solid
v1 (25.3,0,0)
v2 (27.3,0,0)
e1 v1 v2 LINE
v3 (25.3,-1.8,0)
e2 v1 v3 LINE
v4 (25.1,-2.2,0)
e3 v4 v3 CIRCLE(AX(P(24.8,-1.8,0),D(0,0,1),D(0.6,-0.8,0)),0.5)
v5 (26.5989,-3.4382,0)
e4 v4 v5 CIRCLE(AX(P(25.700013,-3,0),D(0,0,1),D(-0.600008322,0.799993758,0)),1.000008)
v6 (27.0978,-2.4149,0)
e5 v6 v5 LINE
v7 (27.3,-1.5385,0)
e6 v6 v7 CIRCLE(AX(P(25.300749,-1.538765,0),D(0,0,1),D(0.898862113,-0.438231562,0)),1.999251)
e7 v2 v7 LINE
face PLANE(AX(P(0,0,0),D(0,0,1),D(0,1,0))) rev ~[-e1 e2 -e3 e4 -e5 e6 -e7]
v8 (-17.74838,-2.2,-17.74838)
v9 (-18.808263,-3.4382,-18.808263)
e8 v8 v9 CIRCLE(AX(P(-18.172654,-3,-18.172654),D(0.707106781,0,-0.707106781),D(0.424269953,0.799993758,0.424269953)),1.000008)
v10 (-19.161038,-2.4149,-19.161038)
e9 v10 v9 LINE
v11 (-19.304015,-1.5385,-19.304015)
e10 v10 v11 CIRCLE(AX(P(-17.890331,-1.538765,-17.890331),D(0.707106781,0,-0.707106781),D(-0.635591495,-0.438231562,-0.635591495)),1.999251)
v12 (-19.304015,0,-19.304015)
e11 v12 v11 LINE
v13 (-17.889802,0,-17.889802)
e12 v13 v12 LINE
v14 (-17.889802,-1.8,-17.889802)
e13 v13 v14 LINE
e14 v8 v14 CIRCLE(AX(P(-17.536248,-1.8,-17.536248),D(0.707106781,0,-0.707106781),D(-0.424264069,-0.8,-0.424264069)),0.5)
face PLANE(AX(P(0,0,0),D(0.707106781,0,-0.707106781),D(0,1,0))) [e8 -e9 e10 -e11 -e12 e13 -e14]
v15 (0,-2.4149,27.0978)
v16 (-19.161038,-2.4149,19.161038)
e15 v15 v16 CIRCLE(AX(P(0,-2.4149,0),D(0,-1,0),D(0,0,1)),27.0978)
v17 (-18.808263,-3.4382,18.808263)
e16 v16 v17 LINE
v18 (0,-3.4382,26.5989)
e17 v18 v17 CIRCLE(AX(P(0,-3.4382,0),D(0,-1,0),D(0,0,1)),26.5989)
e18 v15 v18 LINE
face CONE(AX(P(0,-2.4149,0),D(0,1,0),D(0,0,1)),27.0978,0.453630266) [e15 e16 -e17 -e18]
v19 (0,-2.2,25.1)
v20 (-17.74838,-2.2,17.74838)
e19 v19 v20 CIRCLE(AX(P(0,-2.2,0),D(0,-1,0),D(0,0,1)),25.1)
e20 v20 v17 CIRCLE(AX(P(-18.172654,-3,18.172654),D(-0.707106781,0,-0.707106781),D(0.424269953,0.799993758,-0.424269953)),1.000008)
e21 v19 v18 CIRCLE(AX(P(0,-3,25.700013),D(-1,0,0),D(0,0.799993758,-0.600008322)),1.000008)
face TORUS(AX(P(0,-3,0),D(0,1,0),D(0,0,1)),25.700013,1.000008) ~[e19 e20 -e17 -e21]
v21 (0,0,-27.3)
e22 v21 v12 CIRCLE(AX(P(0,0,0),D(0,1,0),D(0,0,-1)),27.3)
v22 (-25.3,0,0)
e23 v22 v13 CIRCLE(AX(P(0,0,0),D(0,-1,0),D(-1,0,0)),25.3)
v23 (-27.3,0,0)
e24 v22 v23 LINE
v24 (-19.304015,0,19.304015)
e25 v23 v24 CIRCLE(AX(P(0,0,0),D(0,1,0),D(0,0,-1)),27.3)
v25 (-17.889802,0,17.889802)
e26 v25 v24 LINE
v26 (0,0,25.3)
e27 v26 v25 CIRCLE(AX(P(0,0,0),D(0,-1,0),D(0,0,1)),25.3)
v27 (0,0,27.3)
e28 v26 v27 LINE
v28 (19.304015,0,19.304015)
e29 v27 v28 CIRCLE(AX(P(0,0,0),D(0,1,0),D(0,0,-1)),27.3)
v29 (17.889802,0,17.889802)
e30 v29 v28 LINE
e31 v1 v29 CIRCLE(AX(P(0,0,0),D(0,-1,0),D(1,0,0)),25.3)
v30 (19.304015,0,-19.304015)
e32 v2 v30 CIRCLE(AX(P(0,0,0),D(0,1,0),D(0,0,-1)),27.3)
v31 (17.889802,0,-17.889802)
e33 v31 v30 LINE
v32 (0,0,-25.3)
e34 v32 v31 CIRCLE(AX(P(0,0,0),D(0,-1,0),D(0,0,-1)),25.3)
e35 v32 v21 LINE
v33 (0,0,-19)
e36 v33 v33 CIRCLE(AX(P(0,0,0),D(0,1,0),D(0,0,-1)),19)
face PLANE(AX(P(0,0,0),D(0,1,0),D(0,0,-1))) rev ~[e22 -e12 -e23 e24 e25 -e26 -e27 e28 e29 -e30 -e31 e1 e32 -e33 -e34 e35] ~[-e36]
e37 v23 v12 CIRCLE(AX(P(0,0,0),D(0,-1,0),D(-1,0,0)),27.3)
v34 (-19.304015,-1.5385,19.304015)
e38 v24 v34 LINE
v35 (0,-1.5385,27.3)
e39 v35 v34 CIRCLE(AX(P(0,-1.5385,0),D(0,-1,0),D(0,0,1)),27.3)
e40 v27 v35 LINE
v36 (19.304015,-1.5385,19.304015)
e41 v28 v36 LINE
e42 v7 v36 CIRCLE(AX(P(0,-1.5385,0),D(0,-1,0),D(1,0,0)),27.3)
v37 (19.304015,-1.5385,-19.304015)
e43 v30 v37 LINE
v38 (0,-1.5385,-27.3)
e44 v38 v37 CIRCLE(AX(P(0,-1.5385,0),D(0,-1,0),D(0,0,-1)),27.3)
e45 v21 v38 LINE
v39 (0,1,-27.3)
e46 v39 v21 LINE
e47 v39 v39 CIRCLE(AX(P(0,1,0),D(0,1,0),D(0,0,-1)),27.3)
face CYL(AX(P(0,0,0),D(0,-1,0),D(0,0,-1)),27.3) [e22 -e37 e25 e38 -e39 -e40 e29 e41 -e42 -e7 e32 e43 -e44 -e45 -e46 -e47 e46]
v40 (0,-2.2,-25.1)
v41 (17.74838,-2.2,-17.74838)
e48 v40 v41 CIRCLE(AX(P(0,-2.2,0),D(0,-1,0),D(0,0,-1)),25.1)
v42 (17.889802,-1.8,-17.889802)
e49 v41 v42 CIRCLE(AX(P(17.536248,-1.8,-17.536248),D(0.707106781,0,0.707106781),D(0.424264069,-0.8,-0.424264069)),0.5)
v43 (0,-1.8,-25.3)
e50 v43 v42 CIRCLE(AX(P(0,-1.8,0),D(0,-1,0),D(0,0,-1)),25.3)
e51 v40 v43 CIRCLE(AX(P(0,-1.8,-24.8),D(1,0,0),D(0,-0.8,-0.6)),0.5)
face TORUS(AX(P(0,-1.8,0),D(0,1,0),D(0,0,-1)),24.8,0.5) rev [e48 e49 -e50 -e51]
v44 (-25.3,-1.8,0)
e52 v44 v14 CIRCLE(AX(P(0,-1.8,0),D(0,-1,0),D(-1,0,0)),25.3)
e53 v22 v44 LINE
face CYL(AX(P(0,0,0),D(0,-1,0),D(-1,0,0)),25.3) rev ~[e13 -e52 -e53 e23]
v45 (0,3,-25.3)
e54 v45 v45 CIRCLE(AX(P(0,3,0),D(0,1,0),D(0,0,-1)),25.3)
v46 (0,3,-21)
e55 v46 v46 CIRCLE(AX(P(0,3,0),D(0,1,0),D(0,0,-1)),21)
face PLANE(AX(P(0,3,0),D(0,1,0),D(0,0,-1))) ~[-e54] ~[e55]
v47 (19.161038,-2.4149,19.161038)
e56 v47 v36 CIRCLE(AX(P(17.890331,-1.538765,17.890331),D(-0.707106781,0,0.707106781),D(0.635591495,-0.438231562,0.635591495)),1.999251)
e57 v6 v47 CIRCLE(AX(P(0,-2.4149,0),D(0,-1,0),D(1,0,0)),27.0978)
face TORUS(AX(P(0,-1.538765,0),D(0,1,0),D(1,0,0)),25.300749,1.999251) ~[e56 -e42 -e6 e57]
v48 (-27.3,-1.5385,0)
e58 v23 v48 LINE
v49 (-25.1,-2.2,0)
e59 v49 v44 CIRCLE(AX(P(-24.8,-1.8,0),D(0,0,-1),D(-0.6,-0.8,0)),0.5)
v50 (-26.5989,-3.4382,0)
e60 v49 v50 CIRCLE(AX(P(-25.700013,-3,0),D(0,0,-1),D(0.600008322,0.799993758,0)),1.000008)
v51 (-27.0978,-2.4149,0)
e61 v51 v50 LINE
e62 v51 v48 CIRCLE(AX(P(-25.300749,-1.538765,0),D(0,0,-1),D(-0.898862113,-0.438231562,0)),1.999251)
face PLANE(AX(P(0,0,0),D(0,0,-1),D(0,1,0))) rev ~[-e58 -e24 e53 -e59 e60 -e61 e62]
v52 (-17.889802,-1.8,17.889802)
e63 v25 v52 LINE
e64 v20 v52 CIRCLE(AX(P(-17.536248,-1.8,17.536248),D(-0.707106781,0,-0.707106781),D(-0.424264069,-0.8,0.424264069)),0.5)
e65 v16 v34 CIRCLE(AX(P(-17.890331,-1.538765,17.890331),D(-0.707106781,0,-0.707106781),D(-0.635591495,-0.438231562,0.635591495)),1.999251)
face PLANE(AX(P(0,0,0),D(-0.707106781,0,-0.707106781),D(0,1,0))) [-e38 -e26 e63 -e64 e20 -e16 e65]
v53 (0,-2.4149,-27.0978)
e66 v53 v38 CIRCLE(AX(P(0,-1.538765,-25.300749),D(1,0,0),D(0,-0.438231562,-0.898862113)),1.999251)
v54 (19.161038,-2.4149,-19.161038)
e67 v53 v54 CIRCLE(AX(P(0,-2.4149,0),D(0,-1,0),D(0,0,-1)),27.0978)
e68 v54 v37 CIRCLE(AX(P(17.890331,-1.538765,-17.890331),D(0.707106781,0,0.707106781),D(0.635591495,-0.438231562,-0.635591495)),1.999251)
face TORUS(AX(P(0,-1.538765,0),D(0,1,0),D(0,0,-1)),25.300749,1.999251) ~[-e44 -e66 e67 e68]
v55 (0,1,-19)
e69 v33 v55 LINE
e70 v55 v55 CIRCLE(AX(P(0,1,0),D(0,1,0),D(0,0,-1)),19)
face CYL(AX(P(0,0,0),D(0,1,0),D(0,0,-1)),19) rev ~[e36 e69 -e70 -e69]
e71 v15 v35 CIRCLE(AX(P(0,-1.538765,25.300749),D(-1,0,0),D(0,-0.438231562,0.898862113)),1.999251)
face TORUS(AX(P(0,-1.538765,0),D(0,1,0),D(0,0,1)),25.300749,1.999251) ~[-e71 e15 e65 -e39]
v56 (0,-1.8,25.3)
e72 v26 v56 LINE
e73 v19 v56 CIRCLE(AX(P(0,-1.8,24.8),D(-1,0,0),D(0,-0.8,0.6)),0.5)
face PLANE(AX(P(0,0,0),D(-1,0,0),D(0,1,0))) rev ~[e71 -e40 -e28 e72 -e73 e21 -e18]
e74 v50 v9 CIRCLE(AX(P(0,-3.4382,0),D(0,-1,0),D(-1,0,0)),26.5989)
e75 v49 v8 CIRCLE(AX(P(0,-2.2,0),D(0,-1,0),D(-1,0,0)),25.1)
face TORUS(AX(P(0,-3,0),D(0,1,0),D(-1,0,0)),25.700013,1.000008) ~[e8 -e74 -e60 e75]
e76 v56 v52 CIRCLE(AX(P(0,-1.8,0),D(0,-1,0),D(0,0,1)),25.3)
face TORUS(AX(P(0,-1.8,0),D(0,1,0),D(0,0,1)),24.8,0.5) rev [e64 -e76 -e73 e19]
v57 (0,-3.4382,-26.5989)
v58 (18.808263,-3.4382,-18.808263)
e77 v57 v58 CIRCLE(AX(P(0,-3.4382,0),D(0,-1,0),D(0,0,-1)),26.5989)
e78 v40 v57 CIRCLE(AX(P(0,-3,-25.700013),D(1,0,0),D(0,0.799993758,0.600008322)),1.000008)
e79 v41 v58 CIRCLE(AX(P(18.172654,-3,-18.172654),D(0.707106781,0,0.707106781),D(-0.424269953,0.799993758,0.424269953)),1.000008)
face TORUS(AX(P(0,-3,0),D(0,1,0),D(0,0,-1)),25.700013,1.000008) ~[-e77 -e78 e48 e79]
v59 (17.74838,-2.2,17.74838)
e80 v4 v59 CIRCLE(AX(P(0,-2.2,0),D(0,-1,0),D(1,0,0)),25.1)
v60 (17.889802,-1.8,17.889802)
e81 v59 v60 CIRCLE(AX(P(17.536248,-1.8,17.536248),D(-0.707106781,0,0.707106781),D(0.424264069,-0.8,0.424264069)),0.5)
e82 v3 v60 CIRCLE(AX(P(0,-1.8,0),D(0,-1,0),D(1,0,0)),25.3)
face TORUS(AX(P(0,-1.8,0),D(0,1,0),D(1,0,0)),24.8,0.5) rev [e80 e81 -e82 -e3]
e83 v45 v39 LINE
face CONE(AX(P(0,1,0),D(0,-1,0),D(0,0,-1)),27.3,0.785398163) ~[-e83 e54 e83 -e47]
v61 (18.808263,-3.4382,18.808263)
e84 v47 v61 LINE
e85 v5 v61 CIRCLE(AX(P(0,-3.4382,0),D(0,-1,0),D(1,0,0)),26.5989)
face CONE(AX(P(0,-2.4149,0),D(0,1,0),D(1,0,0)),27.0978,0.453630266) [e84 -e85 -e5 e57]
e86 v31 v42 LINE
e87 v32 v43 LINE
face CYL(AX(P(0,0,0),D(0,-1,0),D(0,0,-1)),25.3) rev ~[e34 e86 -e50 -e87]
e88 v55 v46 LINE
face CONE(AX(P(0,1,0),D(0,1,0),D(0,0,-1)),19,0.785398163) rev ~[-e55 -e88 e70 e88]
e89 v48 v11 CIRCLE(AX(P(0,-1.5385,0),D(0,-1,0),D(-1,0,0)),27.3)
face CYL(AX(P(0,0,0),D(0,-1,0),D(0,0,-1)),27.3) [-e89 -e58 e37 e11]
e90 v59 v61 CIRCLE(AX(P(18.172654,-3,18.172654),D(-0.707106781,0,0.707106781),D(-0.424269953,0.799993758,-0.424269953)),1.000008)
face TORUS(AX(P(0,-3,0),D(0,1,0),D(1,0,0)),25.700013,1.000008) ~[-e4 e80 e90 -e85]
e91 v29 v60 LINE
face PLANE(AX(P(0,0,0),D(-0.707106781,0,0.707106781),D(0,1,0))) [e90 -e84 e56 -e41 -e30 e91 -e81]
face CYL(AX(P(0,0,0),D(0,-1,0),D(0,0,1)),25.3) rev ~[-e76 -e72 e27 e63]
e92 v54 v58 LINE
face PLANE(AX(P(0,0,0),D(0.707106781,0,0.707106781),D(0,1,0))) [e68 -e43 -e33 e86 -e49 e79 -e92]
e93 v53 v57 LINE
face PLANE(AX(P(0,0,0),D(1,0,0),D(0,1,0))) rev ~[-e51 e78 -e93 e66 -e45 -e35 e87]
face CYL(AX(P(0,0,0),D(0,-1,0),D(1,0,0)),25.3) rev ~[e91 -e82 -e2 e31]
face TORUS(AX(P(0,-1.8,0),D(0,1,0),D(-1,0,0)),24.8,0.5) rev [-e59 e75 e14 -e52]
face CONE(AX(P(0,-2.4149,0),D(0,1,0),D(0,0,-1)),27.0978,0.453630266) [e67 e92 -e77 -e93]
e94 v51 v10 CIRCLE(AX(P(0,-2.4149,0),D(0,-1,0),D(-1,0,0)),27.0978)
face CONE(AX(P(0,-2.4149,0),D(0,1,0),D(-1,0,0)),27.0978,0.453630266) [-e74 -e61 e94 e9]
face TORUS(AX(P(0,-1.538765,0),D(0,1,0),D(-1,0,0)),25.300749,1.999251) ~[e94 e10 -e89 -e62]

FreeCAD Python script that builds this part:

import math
import FreeCAD as App
import Part
import Sketcher

V = App.Vector
Q = App.Units.Quantity


def edges_at(feature, points):
    """Names of the edges that pass closest to the given points."""
    edges = feature.Shape.Edges
    near = lambda p: min(range(len(edges)), key=lambda i: edges[i].distToShape(Part.Vertex(*p))[0])
    return sorted({f"Edge{near(p) + 1}" for p in points})


def add_polygon(sketch, points):
    """Adds a closed chain of lines whose ends are joined by coincident constraints."""
    first, n = sketch.GeometryCount, len(points)
    for a, b in zip(points, points[1:] + points[:1]):
        sketch.addGeometry(Part.LineSegment(App.Vector(*a, 0), App.Vector(*b, 0)), False)
    for i in range(n):
        sketch.addConstraint(Sketcher.Constraint("Coincident", first + i, 2, first + (i + 1) % n, 1))

doc = App.newDocument("Part")
body = doc.addObject("PartDesign::Body", "Body")

sketch1 = doc.addObject("Sketcher::SketchObject", "Sketch")
body.addObject(sketch1)
sketch1.AttachmentSupport = (doc.YZ_Plane, [""])
sketch1.MapMode = "FlatFace"
add_polygon(sketch1, [(3, -19), (0, -19), (0, -27.3), (3, -27.3)])
sketch1.addConstraint([
    Sketcher.Constraint("Horizontal", 0),
    Sketcher.Constraint("Vertical", 1),
    Sketcher.Constraint("Horizontal", 2),
    Sketcher.Constraint("Vertical", 3),
    Sketcher.Constraint("PointOnObject", 0, 2, -2),
    Sketcher.Constraint("DistanceX", 0, 2, 0, 1, 3.0),
    Sketcher.Constraint("DistanceY", 0, 2, -1, 1, 19.0),
    Sketcher.Constraint("DistanceY", 1, 2, -1, 1, 27.3),
])
revolution = doc.addObject("PartDesign::Revolution", "Revolution")
body.addObject(revolution)
revolution.Profile = sketch1
revolution.ReferenceAxis = (sketch1, ["H_Axis"])
revolution.Angle = 360
doc.recompute()

chamfer = doc.addObject("PartDesign::Chamfer", "Chamfer")
body.addObject(chamfer)
chamfer.Base = (revolution, edges_at(revolution, [(0, 3, 19)]))
chamfer.Size = 2
doc.recompute()

chamfer2 = doc.addObject("PartDesign::Chamfer", "Chamfer001")
body.addObject(chamfer2)
chamfer2.Base = (chamfer, edges_at(chamfer, [(0, 3, 27.3)]))
chamfer2.Size = 2

sketch2 = doc.addObject("Sketcher::SketchObject", "Sketch001")
body.addObject(sketch2)
sketch2.AttachmentSupport = (doc.YZ_Plane, [""])
sketch2.MapMode = "FlatFace"
sketch2.addGeometry([
    Part.LineSegment(V(0, -27.3, 0), V(0, -25.3, 0)),
    Part.LineSegment(V(0, -25.3, 0), V(-1.8, -25.3, 0)),
    Part.ArcOfCircle(Part.Circle(V(-1.8, -24.8, 0), V(0, 0, 1), 0.5), math.radians(-143.130102), math.radians(-90)),
    Part.ArcOfCircle(Part.Circle(V(-3, -25.7, 0), V(0, 0, 1), 1), math.radians(36.869898), math.radians(244.011475)),
    Part.LineSegment(V(-3.4382, -26.5989, 0), V(-2.4149, -27.0978, 0)),
    Part.ArcOfCircle(Part.Circle(V(-1.5385, -25.3, 0), V(0, 0, 1), 2.00004), math.radians(-115.988525), math.radians(-90)),
    Part.LineSegment(V(-1.5385, -27.3, 0), V(0, -27.3, 0)),
], False)
sketch2.addConstraint([
    Sketcher.Constraint("Coincident", 0, 2, 1, 1),
    Sketcher.Constraint("Tangent", 1, 2, 2, 2),
    Sketcher.Constraint("Tangent", 2, 1, 3, 1),
    Sketcher.Constraint("Tangent", 3, 2, 4, 1),
    Sketcher.Constraint("Tangent", 4, 2, 5, 1),
    Sketcher.Constraint("Tangent", 5, 2, 6, 1),
    Sketcher.Constraint("Coincident", 6, 2, 0, 1),
    Sketcher.Constraint("Vertical", 0),
    Sketcher.Constraint("Horizontal", 1),
    Sketcher.Constraint("Horizontal", 6),
    Sketcher.Constraint("PointOnObject", 0, 2, -2),
    Sketcher.Constraint("Horizontal", 5, 3, 0, 2),
    Sketcher.Constraint("Radius", 3, 1.0),
    Sketcher.Constraint("Radius", 5, 2.0),
    Sketcher.Constraint("Radius", 2, 0.5),
    Sketcher.Constraint("DistanceY", 2, 3, -1, 1, 24.8),
    Sketcher.Constraint("DistanceY", 2, 1, 2, 3, 0.3),
    Sketcher.Constraint("DistanceX", 1, 2, 1, 1, 1.8),
    Sketcher.Constraint("Angle", 4, Q("-25.991 deg")),
])
revolution2 = doc.addObject("PartDesign::Revolution", "Revolution001")
body.addObject(revolution2)
revolution2.Profile = sketch2
revolution2.ReferenceAxis = (sketch2, ["H_Axis"])
revolution2.Angle = 45
revolution2.Reversed = True
doc.recompute()

polarpattern = doc.addObject("PartDesign::PolarPattern", "PolarPattern")
body.addObject(polarpattern)
polarpattern.Originals = [revolution2]
polarpattern.Axis = (doc.Y_Axis, [""])
polarpattern.Angle = 360
polarpattern.Occurrences = 4
body.Tip = polarpattern

doc.recompute()
